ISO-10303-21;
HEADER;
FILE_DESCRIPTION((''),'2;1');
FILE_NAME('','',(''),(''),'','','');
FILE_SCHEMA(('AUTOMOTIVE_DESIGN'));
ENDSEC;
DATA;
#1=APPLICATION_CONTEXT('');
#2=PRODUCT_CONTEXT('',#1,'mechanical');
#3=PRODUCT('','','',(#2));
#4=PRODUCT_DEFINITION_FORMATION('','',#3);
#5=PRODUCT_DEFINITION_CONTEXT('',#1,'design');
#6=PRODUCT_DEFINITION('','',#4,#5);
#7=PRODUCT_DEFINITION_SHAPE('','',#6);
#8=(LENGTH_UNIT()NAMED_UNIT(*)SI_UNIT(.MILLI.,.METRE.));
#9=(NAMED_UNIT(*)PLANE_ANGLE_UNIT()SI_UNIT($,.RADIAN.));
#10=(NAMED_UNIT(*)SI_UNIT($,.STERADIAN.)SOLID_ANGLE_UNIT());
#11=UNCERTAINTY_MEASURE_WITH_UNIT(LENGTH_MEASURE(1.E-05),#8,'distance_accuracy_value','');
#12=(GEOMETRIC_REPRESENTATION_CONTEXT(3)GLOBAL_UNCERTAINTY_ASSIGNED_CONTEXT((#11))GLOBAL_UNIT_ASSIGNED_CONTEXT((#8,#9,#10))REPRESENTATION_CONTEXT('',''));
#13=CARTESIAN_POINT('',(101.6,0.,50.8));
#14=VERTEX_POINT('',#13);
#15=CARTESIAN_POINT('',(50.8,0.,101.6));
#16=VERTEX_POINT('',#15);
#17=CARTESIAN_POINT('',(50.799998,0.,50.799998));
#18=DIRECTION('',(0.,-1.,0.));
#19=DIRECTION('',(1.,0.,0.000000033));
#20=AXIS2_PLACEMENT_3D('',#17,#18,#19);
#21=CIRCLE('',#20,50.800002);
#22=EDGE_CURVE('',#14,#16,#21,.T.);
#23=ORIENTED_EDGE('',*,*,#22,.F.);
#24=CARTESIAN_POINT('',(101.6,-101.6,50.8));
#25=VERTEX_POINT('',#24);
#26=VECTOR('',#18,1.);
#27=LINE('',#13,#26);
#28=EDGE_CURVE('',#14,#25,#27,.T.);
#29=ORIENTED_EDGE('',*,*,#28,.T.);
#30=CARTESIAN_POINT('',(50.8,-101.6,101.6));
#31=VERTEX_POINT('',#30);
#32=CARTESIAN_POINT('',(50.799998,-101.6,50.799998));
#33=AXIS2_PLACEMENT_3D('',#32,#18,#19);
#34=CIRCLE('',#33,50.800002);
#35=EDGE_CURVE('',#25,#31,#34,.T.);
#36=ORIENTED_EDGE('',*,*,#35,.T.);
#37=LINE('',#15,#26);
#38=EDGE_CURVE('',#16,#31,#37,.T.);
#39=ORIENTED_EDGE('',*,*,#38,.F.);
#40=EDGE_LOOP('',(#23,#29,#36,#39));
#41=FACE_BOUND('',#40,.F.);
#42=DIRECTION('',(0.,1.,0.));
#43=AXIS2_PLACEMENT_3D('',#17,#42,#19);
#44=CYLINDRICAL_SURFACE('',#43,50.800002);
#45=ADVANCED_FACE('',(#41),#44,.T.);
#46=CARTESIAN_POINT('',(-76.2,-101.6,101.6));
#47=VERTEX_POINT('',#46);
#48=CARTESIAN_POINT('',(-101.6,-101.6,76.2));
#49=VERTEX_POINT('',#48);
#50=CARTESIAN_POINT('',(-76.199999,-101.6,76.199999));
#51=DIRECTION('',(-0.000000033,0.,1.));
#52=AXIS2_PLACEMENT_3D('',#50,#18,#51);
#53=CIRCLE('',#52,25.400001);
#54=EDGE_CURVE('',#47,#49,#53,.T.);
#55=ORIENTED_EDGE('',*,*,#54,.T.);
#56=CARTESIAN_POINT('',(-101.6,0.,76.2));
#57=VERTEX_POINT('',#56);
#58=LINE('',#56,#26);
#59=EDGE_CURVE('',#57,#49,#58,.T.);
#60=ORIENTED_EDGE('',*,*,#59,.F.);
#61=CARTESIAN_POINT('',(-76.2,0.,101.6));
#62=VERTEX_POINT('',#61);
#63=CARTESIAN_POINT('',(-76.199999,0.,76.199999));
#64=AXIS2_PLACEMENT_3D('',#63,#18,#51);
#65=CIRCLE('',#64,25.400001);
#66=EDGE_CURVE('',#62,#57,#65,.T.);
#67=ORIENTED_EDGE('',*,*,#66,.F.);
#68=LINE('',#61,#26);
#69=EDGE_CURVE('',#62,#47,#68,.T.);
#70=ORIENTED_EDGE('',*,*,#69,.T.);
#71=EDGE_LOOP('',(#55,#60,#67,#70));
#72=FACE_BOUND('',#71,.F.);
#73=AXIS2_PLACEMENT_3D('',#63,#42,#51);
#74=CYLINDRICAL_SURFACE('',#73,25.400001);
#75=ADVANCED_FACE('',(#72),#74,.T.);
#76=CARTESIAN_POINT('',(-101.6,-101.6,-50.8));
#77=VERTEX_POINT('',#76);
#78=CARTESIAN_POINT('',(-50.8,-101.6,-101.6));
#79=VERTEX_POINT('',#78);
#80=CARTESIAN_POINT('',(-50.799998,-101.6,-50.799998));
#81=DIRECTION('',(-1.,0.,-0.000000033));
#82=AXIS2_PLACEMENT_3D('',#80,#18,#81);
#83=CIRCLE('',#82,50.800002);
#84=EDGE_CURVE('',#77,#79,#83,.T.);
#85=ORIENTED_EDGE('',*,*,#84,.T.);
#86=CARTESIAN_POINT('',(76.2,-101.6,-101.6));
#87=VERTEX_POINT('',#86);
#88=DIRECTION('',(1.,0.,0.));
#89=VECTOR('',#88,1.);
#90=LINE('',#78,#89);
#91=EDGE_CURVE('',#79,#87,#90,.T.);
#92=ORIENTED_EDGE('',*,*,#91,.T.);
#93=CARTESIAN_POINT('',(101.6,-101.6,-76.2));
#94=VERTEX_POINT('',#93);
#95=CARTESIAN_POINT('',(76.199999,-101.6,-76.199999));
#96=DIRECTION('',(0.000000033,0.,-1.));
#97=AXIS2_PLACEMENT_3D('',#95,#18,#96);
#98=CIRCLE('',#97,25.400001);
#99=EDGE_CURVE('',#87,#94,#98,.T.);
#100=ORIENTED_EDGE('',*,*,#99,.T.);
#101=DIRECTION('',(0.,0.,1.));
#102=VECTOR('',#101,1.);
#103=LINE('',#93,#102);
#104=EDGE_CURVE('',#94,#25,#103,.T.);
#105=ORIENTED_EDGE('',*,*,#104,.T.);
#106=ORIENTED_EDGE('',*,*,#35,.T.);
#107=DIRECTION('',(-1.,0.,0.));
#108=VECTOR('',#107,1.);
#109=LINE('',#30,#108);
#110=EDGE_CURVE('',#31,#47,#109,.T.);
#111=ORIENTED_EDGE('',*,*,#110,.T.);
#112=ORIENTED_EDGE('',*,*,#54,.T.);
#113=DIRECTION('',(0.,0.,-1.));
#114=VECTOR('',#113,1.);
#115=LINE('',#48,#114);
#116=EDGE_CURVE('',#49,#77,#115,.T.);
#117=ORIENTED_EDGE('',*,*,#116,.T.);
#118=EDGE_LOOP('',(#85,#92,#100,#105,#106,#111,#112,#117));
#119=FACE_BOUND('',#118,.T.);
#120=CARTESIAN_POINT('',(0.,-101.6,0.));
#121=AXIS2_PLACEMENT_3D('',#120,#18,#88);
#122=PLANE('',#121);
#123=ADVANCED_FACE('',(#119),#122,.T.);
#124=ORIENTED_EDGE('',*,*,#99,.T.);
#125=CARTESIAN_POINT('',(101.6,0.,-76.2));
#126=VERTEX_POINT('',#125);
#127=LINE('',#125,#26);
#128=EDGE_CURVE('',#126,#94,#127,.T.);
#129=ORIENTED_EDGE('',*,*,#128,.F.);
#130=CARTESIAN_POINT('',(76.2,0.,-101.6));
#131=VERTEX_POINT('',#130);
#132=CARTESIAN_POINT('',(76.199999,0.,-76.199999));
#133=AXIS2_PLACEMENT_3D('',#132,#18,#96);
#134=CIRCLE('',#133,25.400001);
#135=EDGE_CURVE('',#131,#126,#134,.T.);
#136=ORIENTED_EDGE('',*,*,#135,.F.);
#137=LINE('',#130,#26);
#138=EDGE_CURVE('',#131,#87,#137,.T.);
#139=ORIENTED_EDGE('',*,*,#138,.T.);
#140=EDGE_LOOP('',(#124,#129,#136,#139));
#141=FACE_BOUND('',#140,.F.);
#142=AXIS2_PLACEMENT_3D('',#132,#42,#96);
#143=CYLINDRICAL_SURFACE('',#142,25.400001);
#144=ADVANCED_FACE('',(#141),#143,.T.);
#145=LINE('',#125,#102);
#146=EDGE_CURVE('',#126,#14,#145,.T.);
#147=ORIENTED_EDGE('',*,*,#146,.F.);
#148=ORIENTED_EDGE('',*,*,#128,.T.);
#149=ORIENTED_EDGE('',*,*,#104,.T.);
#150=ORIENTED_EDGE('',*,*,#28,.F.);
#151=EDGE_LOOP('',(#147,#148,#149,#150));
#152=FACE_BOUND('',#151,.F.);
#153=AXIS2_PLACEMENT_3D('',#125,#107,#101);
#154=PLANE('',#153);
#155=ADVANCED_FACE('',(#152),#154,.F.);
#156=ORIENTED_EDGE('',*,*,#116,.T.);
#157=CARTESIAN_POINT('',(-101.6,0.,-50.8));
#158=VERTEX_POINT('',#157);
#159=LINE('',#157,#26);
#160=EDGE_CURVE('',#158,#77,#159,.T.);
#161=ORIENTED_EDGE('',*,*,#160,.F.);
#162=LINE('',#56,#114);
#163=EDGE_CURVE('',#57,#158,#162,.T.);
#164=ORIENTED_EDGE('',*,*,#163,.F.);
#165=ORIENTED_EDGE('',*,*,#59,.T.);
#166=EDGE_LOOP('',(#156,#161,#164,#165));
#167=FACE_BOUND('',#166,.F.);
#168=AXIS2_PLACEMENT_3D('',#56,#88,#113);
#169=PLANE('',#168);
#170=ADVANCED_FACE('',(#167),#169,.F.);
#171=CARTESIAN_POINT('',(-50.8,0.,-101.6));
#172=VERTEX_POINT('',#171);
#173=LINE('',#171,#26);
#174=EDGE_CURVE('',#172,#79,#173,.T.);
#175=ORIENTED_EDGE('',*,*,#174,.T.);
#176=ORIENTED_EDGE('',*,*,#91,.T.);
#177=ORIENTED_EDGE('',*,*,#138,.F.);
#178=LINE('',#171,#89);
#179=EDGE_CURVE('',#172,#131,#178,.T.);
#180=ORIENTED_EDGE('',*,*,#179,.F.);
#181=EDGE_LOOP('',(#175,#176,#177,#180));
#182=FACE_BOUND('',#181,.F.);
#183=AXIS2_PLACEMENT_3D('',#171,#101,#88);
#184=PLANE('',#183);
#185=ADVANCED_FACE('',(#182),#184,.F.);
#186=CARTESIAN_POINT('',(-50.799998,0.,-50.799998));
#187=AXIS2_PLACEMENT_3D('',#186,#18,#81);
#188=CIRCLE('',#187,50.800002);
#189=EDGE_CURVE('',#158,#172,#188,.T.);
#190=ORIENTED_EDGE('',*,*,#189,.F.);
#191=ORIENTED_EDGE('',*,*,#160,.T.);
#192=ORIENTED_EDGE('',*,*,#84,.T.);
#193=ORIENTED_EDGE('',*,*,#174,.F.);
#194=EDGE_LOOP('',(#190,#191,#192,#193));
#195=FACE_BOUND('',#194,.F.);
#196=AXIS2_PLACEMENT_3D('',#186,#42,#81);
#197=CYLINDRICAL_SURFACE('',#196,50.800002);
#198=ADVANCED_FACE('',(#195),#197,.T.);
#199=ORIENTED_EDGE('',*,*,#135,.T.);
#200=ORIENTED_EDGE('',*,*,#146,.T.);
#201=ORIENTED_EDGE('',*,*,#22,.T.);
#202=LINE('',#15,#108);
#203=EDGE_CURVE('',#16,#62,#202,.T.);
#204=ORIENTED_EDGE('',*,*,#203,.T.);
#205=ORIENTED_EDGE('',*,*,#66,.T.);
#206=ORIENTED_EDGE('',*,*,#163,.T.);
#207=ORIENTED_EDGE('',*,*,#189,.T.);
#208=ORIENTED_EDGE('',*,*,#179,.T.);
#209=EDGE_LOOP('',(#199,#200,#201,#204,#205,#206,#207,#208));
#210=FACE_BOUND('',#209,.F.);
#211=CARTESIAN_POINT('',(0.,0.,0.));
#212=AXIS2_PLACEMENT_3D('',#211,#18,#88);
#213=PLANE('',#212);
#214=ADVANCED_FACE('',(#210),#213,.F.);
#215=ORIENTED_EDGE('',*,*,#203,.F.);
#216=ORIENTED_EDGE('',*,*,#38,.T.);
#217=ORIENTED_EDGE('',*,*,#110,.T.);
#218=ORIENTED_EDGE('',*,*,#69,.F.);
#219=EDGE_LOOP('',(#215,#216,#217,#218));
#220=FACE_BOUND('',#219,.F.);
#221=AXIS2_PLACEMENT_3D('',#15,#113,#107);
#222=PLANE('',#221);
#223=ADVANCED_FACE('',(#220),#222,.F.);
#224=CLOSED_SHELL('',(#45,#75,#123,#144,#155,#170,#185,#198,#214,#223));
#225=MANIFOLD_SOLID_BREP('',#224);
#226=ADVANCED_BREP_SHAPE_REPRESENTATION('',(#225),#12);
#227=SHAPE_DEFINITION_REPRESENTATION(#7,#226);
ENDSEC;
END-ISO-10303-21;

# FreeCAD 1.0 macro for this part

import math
import FreeCAD as App
import Part
import Sketcher

V = App.Vector
Q = App.Units.Quantity

doc = App.newDocument("Part")
body = doc.addObject("PartDesign::Body", "Body")

sketch1 = body.newObject("Sketcher::SketchObject", "Sketch")
sketch1.AttachmentSupport = (doc.getObject("XZ_Plane"), [""])
sketch1.MapMode = "FlatFace"
sketch1.addGeometry([
    Part.LineSegment(V(51, 102, 0), V(-76, 102, 0)),
    Part.ArcOfCircle(Part.Circle(V(-76, 76, 0), V(0, 0, 1), 25), math.radians(90), math.radians(180)),
    Part.LineSegment(V(-102, 76, 0), V(-102, -51, 0)),
    Part.ArcOfCircle(Part.Circle(V(-51, -51, 0), V(0, 0, 1), 51), math.radians(-180), math.radians(-90)),
    Part.LineSegment(V(-51, -102, 0), V(76, -102, 0)),
    Part.ArcOfCircle(Part.Circle(V(76, -76, 0), V(0, 0, 1), 25), math.radians(-90), math.radians(0)),
    Part.LineSegment(V(102, -76, 0), V(102, 51, 0)),
    Part.ArcOfCircle(Part.Circle(V(51, 51, 0), V(0, 0, 1), 51), math.radians(0), math.radians(90)),
], False)
sketch1.addConstraint([
    Sketcher.Constraint("Tangent", 0, 2, 1, 1),
    Sketcher.Constraint("Tangent", 1, 2, 2, 1),
    Sketcher.Constraint("Tangent", 2, 2, 3, 1),
    Sketcher.Constraint("Tangent", 3, 2, 4, 1),
    Sketcher.Constraint("Tangent", 4, 2, 5, 1),
    Sketcher.Constraint("Tangent", 5, 2, 6, 1),
    Sketcher.Constraint("Tangent", 6, 2, 7, 1),
    Sketcher.Constraint("Tangent", 7, 2, 0, 1),
    Sketcher.Constraint("Horizontal", 0),
    Sketcher.Constraint("Vertical", 2),
    Sketcher.Constraint("Horizontal", 4),
    Sketcher.Constraint("Vertical", 6),
    Sketcher.Constraint("Equal", 1, 5),
    Sketcher.Constraint("Equal", 3, 7),
    Sketcher.Constraint("Symmetric", 1, 3, 5, 3, -1, 1),
    Sketcher.Constraint("Equal", 4, 2),
    Sketcher.Constraint("Radius", 1, Q("1 in")),
    Sketcher.Constraint("Radius", 3, Q("2.0000001 in")),
    Sketcher.Constraint("DistanceX", 0, 2, 0, 1, Q("5 in")),
])
pad1 = body.newObject("PartDesign::Pad", "Pad")
pad1.Profile = sketch1
pad1.Length = Q("4 in")

doc.recompute()
